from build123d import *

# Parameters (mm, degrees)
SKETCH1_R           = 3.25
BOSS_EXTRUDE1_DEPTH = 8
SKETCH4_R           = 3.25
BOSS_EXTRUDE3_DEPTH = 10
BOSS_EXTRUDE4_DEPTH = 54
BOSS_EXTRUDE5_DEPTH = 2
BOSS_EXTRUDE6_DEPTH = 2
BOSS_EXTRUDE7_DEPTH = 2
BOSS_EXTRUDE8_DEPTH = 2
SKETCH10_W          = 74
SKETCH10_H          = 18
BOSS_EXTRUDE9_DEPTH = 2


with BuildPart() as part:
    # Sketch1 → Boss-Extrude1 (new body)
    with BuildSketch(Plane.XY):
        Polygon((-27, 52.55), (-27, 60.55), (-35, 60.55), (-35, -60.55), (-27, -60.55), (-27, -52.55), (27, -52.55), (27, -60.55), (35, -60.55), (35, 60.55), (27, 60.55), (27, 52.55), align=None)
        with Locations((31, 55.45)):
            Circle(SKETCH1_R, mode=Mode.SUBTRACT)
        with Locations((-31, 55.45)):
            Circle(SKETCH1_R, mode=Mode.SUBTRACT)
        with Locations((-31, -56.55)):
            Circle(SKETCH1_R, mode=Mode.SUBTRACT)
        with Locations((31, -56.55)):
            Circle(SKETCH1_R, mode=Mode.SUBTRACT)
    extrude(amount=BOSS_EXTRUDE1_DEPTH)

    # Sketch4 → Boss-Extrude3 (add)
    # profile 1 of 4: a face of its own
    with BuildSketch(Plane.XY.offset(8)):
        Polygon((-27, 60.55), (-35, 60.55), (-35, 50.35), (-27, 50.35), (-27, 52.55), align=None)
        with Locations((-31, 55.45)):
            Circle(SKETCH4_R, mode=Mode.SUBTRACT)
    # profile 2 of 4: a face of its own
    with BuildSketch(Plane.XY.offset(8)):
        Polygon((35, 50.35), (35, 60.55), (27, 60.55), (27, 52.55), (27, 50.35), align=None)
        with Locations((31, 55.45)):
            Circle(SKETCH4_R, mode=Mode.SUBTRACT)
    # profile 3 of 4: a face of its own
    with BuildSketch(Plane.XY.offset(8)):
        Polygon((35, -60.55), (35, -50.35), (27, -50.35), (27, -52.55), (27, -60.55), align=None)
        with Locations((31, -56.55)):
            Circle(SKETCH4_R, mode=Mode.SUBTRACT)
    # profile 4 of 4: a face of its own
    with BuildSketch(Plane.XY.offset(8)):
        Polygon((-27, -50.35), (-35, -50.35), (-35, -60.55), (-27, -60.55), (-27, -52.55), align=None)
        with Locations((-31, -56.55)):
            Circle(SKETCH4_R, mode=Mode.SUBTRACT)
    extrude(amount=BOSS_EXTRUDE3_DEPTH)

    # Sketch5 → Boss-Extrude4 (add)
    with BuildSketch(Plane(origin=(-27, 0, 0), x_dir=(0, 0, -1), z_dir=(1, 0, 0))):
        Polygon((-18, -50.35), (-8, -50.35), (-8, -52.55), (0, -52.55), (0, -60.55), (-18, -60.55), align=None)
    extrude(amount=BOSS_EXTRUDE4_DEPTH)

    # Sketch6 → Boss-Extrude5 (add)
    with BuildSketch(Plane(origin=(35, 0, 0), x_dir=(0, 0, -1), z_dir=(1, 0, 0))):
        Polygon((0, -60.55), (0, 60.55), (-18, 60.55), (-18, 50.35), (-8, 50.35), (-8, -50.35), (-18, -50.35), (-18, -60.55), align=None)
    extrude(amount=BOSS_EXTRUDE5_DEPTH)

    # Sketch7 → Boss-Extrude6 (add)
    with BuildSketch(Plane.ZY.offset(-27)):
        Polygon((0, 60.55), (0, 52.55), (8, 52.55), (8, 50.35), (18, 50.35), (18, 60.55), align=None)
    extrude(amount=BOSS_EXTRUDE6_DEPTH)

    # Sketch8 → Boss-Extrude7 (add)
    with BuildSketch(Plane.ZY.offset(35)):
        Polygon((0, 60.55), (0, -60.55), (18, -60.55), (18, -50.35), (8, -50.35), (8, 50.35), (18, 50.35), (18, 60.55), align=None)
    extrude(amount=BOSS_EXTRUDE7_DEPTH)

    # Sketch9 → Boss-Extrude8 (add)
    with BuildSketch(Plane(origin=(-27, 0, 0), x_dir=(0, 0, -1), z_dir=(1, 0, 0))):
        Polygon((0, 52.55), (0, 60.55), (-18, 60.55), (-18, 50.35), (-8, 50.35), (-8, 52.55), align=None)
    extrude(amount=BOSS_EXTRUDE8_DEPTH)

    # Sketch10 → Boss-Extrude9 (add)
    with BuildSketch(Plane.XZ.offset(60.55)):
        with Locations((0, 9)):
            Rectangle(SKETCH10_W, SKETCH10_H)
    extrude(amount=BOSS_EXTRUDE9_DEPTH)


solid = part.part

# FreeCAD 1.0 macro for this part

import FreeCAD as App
import Part
import Sketcher

doc = App.newDocument("Part")
body = doc.addObject("PartDesign::Body", "Body")

# Sketch on XY plane
sketch1 = body.newObject("Sketcher::SketchObject", "Sketch")
sketch1.AttachmentSupport = (doc.getObject("XY_Plane"), [""])
sketch1.MapMode = "FlatFace"
sketch1.addGeometry([
    Part.LineSegment(App.Vector(-27, 52.5, 0), App.Vector(-27, 60.5, 0)),  # 0
    Part.LineSegment(App.Vector(-27, 60.5, 0), App.Vector(-35, 60.5, 0)),  # 1
    Part.LineSegment(App.Vector(-35, 60.5, 0), App.Vector(-35, -60.5, 0)),  # 2
    Part.LineSegment(App.Vector(-35, -60.5, 0), App.Vector(-27, -60.5, 0)),  # 3
    Part.LineSegment(App.Vector(-27, -60.5, 0), App.Vector(-27, -52.5, 0)),  # 4
    Part.LineSegment(App.Vector(-27, -52.5, 0), App.Vector(27, -52.5, 0)),  # 5
    Part.LineSegment(App.Vector(27, -52.5, 0), App.Vector(27, -60.5, 0)),  # 6
    Part.LineSegment(App.Vector(27, -60.5, 0), App.Vector(35, -60.5, 0)),  # 7
    Part.LineSegment(App.Vector(35, -60.5, 0), App.Vector(35, 60.5, 0)),  # 8
    Part.LineSegment(App.Vector(35, 60.5, 0), App.Vector(27, 60.5, 0)),  # 9
    Part.LineSegment(App.Vector(27, 60.5, 0), App.Vector(27, 52.5, 0)),  # 10
    Part.LineSegment(App.Vector(27, 52.5, 0), App.Vector(-27, 52.5, 0)),  # 11
    Part.Circle(App.Vector(-31, -56.5, 0), App.Vector(0, 0, 1), 3.2),  # 12
    Part.Circle(App.Vector(31, -56.5, 0), App.Vector(0, 0, 1), 3.2),  # 13
    Part.Circle(App.Vector(-31, 55.5, 0), App.Vector(0, 0, 1), 3.2),  # 14
    Part.Circle(App.Vector(31, 55.5, 0), App.Vector(0, 0, 1), 3.2),  # 15
], False)
sketch1.addConstraint([
    Sketcher.Constraint("Coincident", 0, 2, 1, 1),
    Sketcher.Constraint("Coincident", 1, 2, 2, 1),
    Sketcher.Constraint("Coincident", 2, 2, 3, 1),
    Sketcher.Constraint("Coincident", 3, 2, 4, 1),
    Sketcher.Constraint("Coincident", 4, 2, 5, 1),
    Sketcher.Constraint("Coincident", 5, 2, 6, 1),
    Sketcher.Constraint("Coincident", 6, 2, 7, 1),
    Sketcher.Constraint("Coincident", 7, 2, 8, 1),
    Sketcher.Constraint("Coincident", 8, 2, 9, 1),
    Sketcher.Constraint("Coincident", 9, 2, 10, 1),
    Sketcher.Constraint("Coincident", 10, 2, 11, 1),
    Sketcher.Constraint("Coincident", 11, 2, 0, 1),
    Sketcher.Constraint("Vertical", 0),
    Sketcher.Constraint("Horizontal", 1),
    Sketcher.Constraint("Vertical", 2),
    Sketcher.Constraint("Horizontal", 3),
    Sketcher.Constraint("Vertical", 4),
    Sketcher.Constraint("Horizontal", 5),
    Sketcher.Constraint("Vertical", 6),
    Sketcher.Constraint("Horizontal", 7),
    Sketcher.Constraint("Vertical", 8),
    Sketcher.Constraint("Horizontal", 9),
    Sketcher.Constraint("Vertical", 10),
    Sketcher.Constraint("Horizontal", 11),
    Sketcher.Constraint("Equal", 12, 13),
    Sketcher.Constraint("Equal", 13, 14),
    Sketcher.Constraint("Equal", 14, 15),
    Sketcher.Constraint("Symmetric", 0, 2, 6, 2, -1, 1),
    Sketcher.Constraint("Symmetric", 2, 2, 8, 2, -1, 1),
    Sketcher.Constraint("Symmetric", 4, 2, 10, 2, -1, 1),
    Sketcher.Constraint("Symmetric", 12, 3, 13, 3, -2),
    Sketcher.Constraint("Symmetric", 14, 3, 15, 3, -2),
    Sketcher.Constraint("Symmetric", 3, 2, 6, 2, -2),
    Sketcher.Constraint("Vertical", 12, 3, 14, 3),
    Sketcher.Constraint("Equal", 9, 0),
    Sketcher.Constraint("Diameter", 12, 6.5),
    Sketcher.Constraint("DistanceX", 1, 2, 1, 1, 8.0),
    Sketcher.Constraint("DistanceX", 5, 1, 5, 2, 54.0),
    Sketcher.Constraint("DistanceY", 2, 2, 2, 1, 121.1),
    Sketcher.Constraint("DistanceX", 12, 3, -1, 1, 31.0),
    Sketcher.Constraint("DistanceY", 12, 3, 14, 3, 112.0),
    Sketcher.Constraint("DistanceY", 2, 2, 12, 3, 4.0),
])
pad1 = body.newObject("PartDesign::Pad", "Pad")
pad1.Profile = sketch1
pad1.Length = 8

# Sketch on XY plane
sketch2 = body.newObject("Sketcher::SketchObject", "Sketch001")
sketch2.AttachmentSupport = (doc.getObject("XY_Plane"), [""])
sketch2.MapMode = "FlatFace"
sketch2.AttachmentOffset = App.Placement(App.Vector(0, 0, 8), App.Rotation())
sketch2.addGeometry([
    Part.LineSegment(App.Vector(-27, 60.5, 0), App.Vector(-35, 60.5, 0)),  # 0
    Part.LineSegment(App.Vector(-35, 60.5, 0), App.Vector(-35, 50.4, 0)),  # 1
    Part.LineSegment(App.Vector(-35, 50.4, 0), App.Vector(-27, 50.4, 0)),  # 2
    Part.LineSegment(App.Vector(-27, 50.4, 0), App.Vector(-27, 60.5, 0)),  # 3
    Part.Circle(App.Vector(-31, 55.5, 0), App.Vector(0, 0, 1), 3.2),  # 4
    Part.LineSegment(App.Vector(35, 50.4, 0), App.Vector(35, 60.5, 0)),  # 5
    Part.LineSegment(App.Vector(35, 60.5, 0), App.Vector(27, 60.5, 0)),  # 6
    Part.LineSegment(App.Vector(27, 60.5, 0), App.Vector(27, 50.4, 0)),  # 7
    Part.LineSegment(App.Vector(27, 50.4, 0), App.Vector(35, 50.4, 0)),  # 8
    Part.Circle(App.Vector(31, 55.5, 0), App.Vector(0, 0, 1), 3.2),  # 9
    Part.LineSegment(App.Vector(35, -60.5, 0), App.Vector(35, -50.4, 0)),  # 10
    Part.LineSegment(App.Vector(35, -50.4, 0), App.Vector(27, -50.4, 0)),  # 11
    Part.LineSegment(App.Vector(27, -50.4, 0), App.Vector(27, -60.5, 0)),  # 12
    Part.LineSegment(App.Vector(27, -60.5, 0), App.Vector(35, -60.5, 0)),  # 13
    Part.Circle(App.Vector(31, -56.5, 0), App.Vector(0, 0, 1), 3.2),  # 14
    Part.LineSegment(App.Vector(-27, -50.4, 0), App.Vector(-35, -50.4, 0)),  # 15
    Part.LineSegment(App.Vector(-35, -50.4, 0), App.Vector(-35, -60.5, 0)),  # 16
    Part.LineSegment(App.Vector(-35, -60.5, 0), App.Vector(-27, -60.5, 0)),  # 17
    Part.LineSegment(App.Vector(-27, -60.5, 0), App.Vector(-27, -50.4, 0)),  # 18
    Part.Circle(App.Vector(-31, -56.5, 0), App.Vector(0, 0, 1), 3.2),  # 19
], False)
sketch2.addConstraint([
    Sketcher.Constraint("Coincident", 0, 2, 1, 1),
    Sketcher.Constraint("Coincident", 1, 2, 2, 1),
    Sketcher.Constraint("Coincident", 2, 2, 3, 1),
    Sketcher.Constraint("Coincident", 3, 2, 0, 1),
    Sketcher.Constraint("Coincident", 5, 2, 6, 1),
    Sketcher.Constraint("Coincident", 6, 2, 7, 1),
    Sketcher.Constraint("Coincident", 7, 2, 8, 1),
    Sketcher.Constraint("Coincident", 8, 2, 5, 1),
    Sketcher.Constraint("Coincident", 10, 2, 11, 1),
    Sketcher.Constraint("Coincident", 11, 2, 12, 1),
    Sketcher.Constraint("Coincident", 12, 2, 13, 1),
    Sketcher.Constraint("Coincident", 13, 2, 10, 1),
    Sketcher.Constraint("Coincident", 15, 2, 16, 1),
    Sketcher.Constraint("Coincident", 16, 2, 17, 1),
    Sketcher.Constraint("Coincident", 17, 2, 18, 1),
    Sketcher.Constraint("Coincident", 18, 2, 15, 1),
    Sketcher.Constraint("Horizontal", 0),
    Sketcher.Constraint("Vertical", 1),
    Sketcher.Constraint("Horizontal", 2),
    Sketcher.Constraint("Vertical", 3),
    Sketcher.Constraint("Vertical", 5),
    Sketcher.Constraint("Horizontal", 6),
    Sketcher.Constraint("Vertical", 7),
    Sketcher.Constraint("Horizontal", 8),
    Sketcher.Constraint("Vertical", 10),
    Sketcher.Constraint("Horizontal", 11),
    Sketcher.Constraint("Vertical", 12),
    Sketcher.Constraint("Horizontal", 13),
    Sketcher.Constraint("Horizontal", 15),
    Sketcher.Constraint("Vertical", 16),
    Sketcher.Constraint("Horizontal", 17),
    Sketcher.Constraint("Vertical", 18),
    Sketcher.Constraint("Equal", 4, 9),
    Sketcher.Constraint("Equal", 9, 14),
    Sketcher.Constraint("Equal", 14, 19),
    Sketcher.Constraint("Symmetric", 1, 2, 10, 2, -1, 1),
    Sketcher.Constraint("Symmetric", 3, 2, 12, 2, -1, 1),
    Sketcher.Constraint("Symmetric", 8, 2, 15, 2, -1, 1),
    Sketcher.Constraint("Symmetric", 6, 2, 17, 2, -1, 1),
    Sketcher.Constraint("Symmetric", 4, 3, 9, 3, -2),
    Sketcher.Constraint("Symmetric", 14, 3, 19, 3, -2),
    Sketcher.Constraint("Symmetric", 0, 2, 5, 2, -2),
    Sketcher.Constraint("Symmetric", 2, 2, 7, 2, -2),
    Sketcher.Constraint("Vertical", 9, 3, 14, 3),
    Sketcher.Constraint("Diameter", 4, 6.5),
    Sketcher.Constraint("DistanceX", 0, 2, 0, 1, 8.0),
    Sketcher.Constraint("DistanceY", 1, 2, 1, 1, 10.2),
    Sketcher.Constraint("DistanceX", 4, 3, -1, 1, 31.0),
    Sketcher.Constraint("DistanceX", 0, 2, -1, 1, 35.0),
    Sketcher.Constraint("DistanceY", 14, 3, 9, 3, 112.0),
    Sketcher.Constraint("DistanceY", 12, 2, 14, 3, 4.0),
    Sketcher.Constraint("DistanceY", 4, 3, 0, 2, 5.1),
])
pad2 = body.newObject("PartDesign::Pad", "Pad001")
pad2.Profile = sketch2
pad2.Length = 10

# Sketch on YZ plane
sketch3 = body.newObject("Sketcher::SketchObject", "Sketch002")
sketch3.AttachmentSupport = (doc.getObject("YZ_Plane"), [""])
sketch3.MapMode = "FlatFace"
sketch3.AttachmentOffset = App.Placement(App.Vector(0, 0, -27), App.Rotation())
sketch3.addGeometry([
    Part.LineSegment(App.Vector(-50.4, 8, 0), App.Vector(-50.4, 18, 0)),  # 0
    Part.LineSegment(App.Vector(-50.4, 18, 0), App.Vector(-60.5, 18, 0)),  # 1
    Part.LineSegment(App.Vector(-60.5, 18, 0), App.Vector(-60.5, 0, 0)),  # 2
    Part.LineSegment(App.Vector(-60.5, 0, 0), App.Vector(-52.5, 0, 0)),  # 3
    Part.LineSegment(App.Vector(-52.5, 0, 0), App.Vector(-52.5, 8, 0)),  # 4
    Part.LineSegment(App.Vector(-52.5, 8, 0), App.Vector(-50.4, 8, 0)),  # 5
], False)
sketch3.addConstraint([
    Sketcher.Constraint("Coincident", 0, 2, 1, 1),
    Sketcher.Constraint("Coincident", 1, 2, 2, 1),
    Sketcher.Constraint("Coincident", 2, 2, 3, 1),
    Sketcher.Constraint("Coincident", 3, 2, 4, 1),
    Sketcher.Constraint("Coincident", 4, 2, 5, 1),
    Sketcher.Constraint("Coincident", 5, 2, 0, 1),
    Sketcher.Constraint("Vertical", 0),
    Sketcher.Constraint("Horizontal", 1),
    Sketcher.Constraint("Vertical", 2),
    Sketcher.Constraint("Horizontal", 3),
    Sketcher.Constraint("Vertical", 4),
    Sketcher.Constraint("Horizontal", 5),
    Sketcher.Constraint("PointOnObject", 2, 2, -1),
    Sketcher.Constraint("Equal", 3, 4),
    Sketcher.Constraint("DistanceX", 3, 1, 3, 2, 8.0),
    Sketcher.Constraint("DistanceY", 0, 1, 0, 2, 10.0),
    Sketcher.Constraint("DistanceX", 1, 2, 1, 1, 10.2),
    Sketcher.Constraint("DistanceX", 0, 2, -1, 1, 50.35),
])
pad3 = body.newObject("PartDesign::Pad", "Pad002")
pad3.Profile = sketch3
pad3.Length = 54

# Sketch on YZ plane
sketch4 = body.newObject("Sketcher::SketchObject", "Sketch003")
sketch4.AttachmentSupport = (doc.getObject("YZ_Plane"), [""])
sketch4.MapMode = "FlatFace"
sketch4.AttachmentOffset = App.Placement(App.Vector(0, 0, 35), App.Rotation())
sketch4.addGeometry([
    Part.LineSegment(App.Vector(-61, 0, 0), App.Vector(61, 0, 0)),  # 0
    Part.LineSegment(App.Vector(61, 0, 0), App.Vector(61, 18, 0)),  # 1
    Part.LineSegment(App.Vector(61, 18, 0), App.Vector(50, 18, 0)),  # 2
    Part.LineSegment(App.Vector(50, 18, 0), App.Vector(50, 8, 0)),  # 3
    Part.LineSegment(App.Vector(50, 8, 0), App.Vector(-50, 8, 0)),  # 4
    Part.LineSegment(App.Vector(-50, 8, 0), App.Vector(-50, 18, 0)),  # 5
    Part.LineSegment(App.Vector(-50, 18, 0), App.Vector(-61, 18, 0)),  # 6
    Part.LineSegment(App.Vector(-61, 18, 0), App.Vector(-61, 0, 0)),  # 7
], False)
sketch4.addConstraint([
    Sketcher.Constraint("Coincident", 0, 2, 1, 1),
    Sketcher.Constraint("Coincident", 1, 2, 2, 1),
    Sketcher.Constraint("Coincident", 2, 2, 3, 1),
    Sketcher.Constraint("Coincident", 3, 2, 4, 1),
    Sketcher.Constraint("Coincident", 4, 2, 5, 1),
    Sketcher.Constraint("Coincident", 5, 2, 6, 1),
    Sketcher.Constraint("Coincident", 6, 2, 7, 1),
    Sketcher.Constraint("Coincident", 7, 2, 0, 1),
    Sketcher.Constraint("Horizontal", 0),
    Sketcher.Constraint("Vertical", 1),
    Sketcher.Constraint("Horizontal", 2),
    Sketcher.Constraint("Vertical", 3),
    Sketcher.Constraint("Horizontal", 4),
    Sketcher.Constraint("Vertical", 5),
    Sketcher.Constraint("Horizontal", 6),
    Sketcher.Constraint("Vertical", 7),
    Sketcher.Constraint("Symmetric", 0, 2, 7, 2, -1, 1),
    Sketcher.Constraint("Symmetric", 2, 2, 5, 2, -2),
    Sketcher.Constraint("DistanceY", 1, 1, 1, 2, 18.0),
    Sketcher.Constraint("DistanceY", 3, 2, 3, 1, 10.0),
    Sketcher.Constraint("DistanceX", 0, 1, 0, 2, 121.1),
    Sketcher.Constraint("DistanceX", 2, 2, 2, 1, 10.2),
])
pad4 = body.newObject("PartDesign::Pad", "Pad003")
pad4.Profile = sketch4
pad4.Length = 2

# Sketch on YZ plane
sketch5 = body.newObject("Sketcher::SketchObject", "Sketch004")
sketch5.AttachmentSupport = (doc.getObject("YZ_Plane"), [""])
sketch5.MapMode = "FlatFace"
sketch5.AttachmentOffset = App.Placement(App.Vector(0, 0, 27), App.Rotation())
sketch5.addGeometry([
    Part.LineSegment(App.Vector(60.5, 0, 0), App.Vector(52.5, 0, 0)),  # 0
    Part.LineSegment(App.Vector(52.5, 0, 0), App.Vector(52.5, 8, 0)),  # 1
    Part.LineSegment(App.Vector(52.5, 8, 0), App.Vector(50.4, 8, 0)),  # 2
    Part.LineSegment(App.Vector(50.4, 8, 0), App.Vector(50.4, 18, 0)),  # 3
    Part.LineSegment(App.Vector(50.4, 18, 0), App.Vector(60.5, 18, 0)),  # 4
    Part.LineSegment(App.Vector(60.5, 18, 0), App.Vector(60.5, 0, 0)),  # 5
], False)
sketch5.addConstraint([
    Sketcher.Constraint("Coincident", 0, 2, 1, 1),
    Sketcher.Constraint("Coincident", 1, 2, 2, 1),
    Sketcher.Constraint("Coincident", 2, 2, 3, 1),
    Sketcher.Constraint("Coincident", 3, 2, 4, 1),
    Sketcher.Constraint("Coincident", 4, 2, 5, 1),
    Sketcher.Constraint("Coincident", 5, 2, 0, 1),
    Sketcher.Constraint("Horizontal", 0),
    Sketcher.Constraint("Vertical", 1),
    Sketcher.Constraint("Horizontal", 2),
    Sketcher.Constraint("Vertical", 3),
    Sketcher.Constraint("Horizontal", 4),
    Sketcher.Constraint("Vertical", 5),
    Sketcher.Constraint("PointOnObject", 0, 2, -1),
    Sketcher.Constraint("Equal", 0, 1),
    Sketcher.Constraint("DistanceX", 0, 2, 0, 1, 8.0),
    Sketcher.Constraint("DistanceY", 3, 1, 3, 2, 10.0),
    Sketcher.Constraint("DistanceX", 2, 2, 2, 1, 2.2),
    Sketcher.Constraint("DistanceX", -1, 1, 0, 2, 52.55),
])
pad5 = body.newObject("PartDesign::Pad", "Pad004")
pad5.Profile = sketch5
pad5.Length = 2
pad5.Reversed = True

# Sketch on YZ plane
sketch6 = body.newObject("Sketcher::SketchObject", "Sketch005")
sketch6.AttachmentSupport = (doc.getObject("YZ_Plane"), [""])
sketch6.MapMode = "FlatFace"
sketch6.AttachmentOffset = App.Placement(App.Vector(0, 0, -35), App.Rotation())
sketch6.addGeometry([
    Part.LineSegment(App.Vector(61, 0, 0), App.Vector(-61, 0, 0)),  # 0
    Part.LineSegment(App.Vector(-61, 0, 0), App.Vector(-61, 18, 0)),  # 1
    Part.LineSegment(App.Vector(-61, 18, 0), App.Vector(-50, 18, 0)),  # 2
    Part.LineSegment(App.Vector(-50, 18, 0), App.Vector(-50, 8, 0)),  # 3
    Part.LineSegment(App.Vector(-50, 8, 0), App.Vector(50, 8, 0)),  # 4
    Part.LineSegment(App.Vector(50, 8, 0), App.Vector(50, 18, 0)),  # 5
    Part.LineSegment(App.Vector(50, 18, 0), App.Vector(61, 18, 0)),  # 6
    Part.LineSegment(App.Vector(61, 18, 0), App.Vector(61, 0, 0)),  # 7
], False)
sketch6.addConstraint([
    Sketcher.Constraint("Coincident", 0, 2, 1, 1),
    Sketcher.Constraint("Coincident", 1, 2, 2, 1),
    Sketcher.Constraint("Coincident", 2, 2, 3, 1),
    Sketcher.Constraint("Coincident", 3, 2, 4, 1),
    Sketcher.Constraint("Coincident", 4, 2, 5, 1),
    Sketcher.Constraint("Coincident", 5, 2, 6, 1),
    Sketcher.Constraint("Coincident", 6, 2, 7, 1),
    Sketcher.Constraint("Coincident", 7, 2, 0, 1),
    Sketcher.Constraint("Horizontal", 0),
    Sketcher.Constraint("Vertical", 1),
    Sketcher.Constraint("Horizontal", 2),
    Sketcher.Constraint("Vertical", 3),
    Sketcher.Constraint("Horizontal", 4),
    Sketcher.Constraint("Vertical", 5),
    Sketcher.Constraint("Horizontal", 6),
    Sketcher.Constraint("Vertical", 7),
    Sketcher.Constraint("Symmetric", 0, 2, 7, 2, -1, 1),
    Sketcher.Constraint("Symmetric", 2, 2, 5, 2, -2),
    Sketcher.Constraint("DistanceY", 1, 1, 1, 2, 18.0),
    Sketcher.Constraint("DistanceY", 3, 2, 3, 1, 10.0),
    Sketcher.Constraint("DistanceX", 0, 2, 0, 1, 121.1),
    Sketcher.Constraint("DistanceX", 2, 1, 2, 2, 10.2),
])
pad6 = body.newObject("PartDesign::Pad", "Pad005")
pad6.Profile = sketch6
pad6.Length = 2
pad6.Reversed = True

# Sketch on YZ plane
sketch7 = body.newObject("Sketcher::SketchObject", "Sketch006")
sketch7.AttachmentSupport = (doc.getObject("YZ_Plane"), [""])
sketch7.MapMode = "FlatFace"
sketch7.AttachmentOffset = App.Placement(App.Vector(0, 0, -27), App.Rotation())
sketch7.addGeometry([
    Part.LineSegment(App.Vector(52.5, 0, 0), App.Vector(60.5, 0, 0)),  # 0
    Part.LineSegment(App.Vector(60.5, 0, 0), App.Vector(60.5, 18, 0)),  # 1
    Part.LineSegment(App.Vector(60.5, 18, 0), App.Vector(50.4, 18, 0)),  # 2
    Part.LineSegment(App.Vector(50.4, 18, 0), App.Vector(50.4, 8, 0)),  # 3
    Part.LineSegment(App.Vector(50.4, 8, 0), App.Vector(52.5, 8, 0)),  # 4
    Part.LineSegment(App.Vector(52.5, 8, 0), App.Vector(52.5, 0, 0)),  # 5
], False)
sketch7.addConstraint([
    Sketcher.Constraint("Coincident", 0, 2, 1, 1),
    Sketcher.Constraint("Coincident", 1, 2, 2, 1),
    Sketcher.Constraint("Coincident", 2, 2, 3, 1),
    Sketcher.Constraint("Coincident", 3, 2, 4, 1),
    Sketcher.Constraint("Coincident", 4, 2, 5, 1),
    Sketcher.Constraint("Coincident", 5, 2, 0, 1),
    Sketcher.Constraint("Horizontal", 0),
    Sketcher.Constraint("Vertical", 1),
    Sketcher.Constraint("Horizontal", 2),
    Sketcher.Constraint("Vertical", 3),
    Sketcher.Constraint("Horizontal", 4),
    Sketcher.Constraint("Vertical", 5),
    Sketcher.Constraint("PointOnObject", 0, 2, -1),
    Sketcher.Constraint("Equal", 0, 5),
    Sketcher.Constraint("DistanceX", 0, 1, 0, 2, 8.0),
    Sketcher.Constraint("DistanceY", 1, 1, 1, 2, 18.0),
    Sketcher.Constraint("DistanceX", 2, 2, 2, 1, 10.2),
    Sketcher.Constraint("DistanceX", -1, 1, 0, 2, 60.55),
])
pad7 = body.newObject("PartDesign::Pad", "Pad006")
pad7.Profile = sketch7
pad7.Length = 2

# Sketch on XZ plane
sketch8 = body.newObject("Sketcher::SketchObject", "Sketch007")
sketch8.AttachmentSupport = (doc.getObject("XZ_Plane"), [""])
sketch8.MapMode = "FlatFace"
sketch8.AttachmentOffset = App.Placement(App.Vector(0, 0, 60.55), App.Rotation())
sketch8.addGeometry([
    Part.LineSegment(App.Vector(-37, 18, 0), App.Vector(-37, 0, 0)),
    Part.LineSegment(App.Vector(-37, 0, 0), App.Vector(37, 0, 0)),
    Part.LineSegment(App.Vector(37, 0, 0), App.Vector(37, 18, 0)),
    Part.LineSegment(App.Vector(37, 18, 0), App.Vector(-37, 18, 0)),
], False)
sketch8.addConstraint([
    Sketcher.Constraint("Coincident", 0, 2, 1, 1),
    Sketcher.Constraint("Coincident", 1, 2, 2, 1),
    Sketcher.Constraint("Coincident", 2, 2, 3, 1),
    Sketcher.Constraint("Coincident", 3, 2, 0, 1),
    Sketcher.Constraint("Vertical", 0),
    Sketcher.Constraint("Horizontal", 1),
    Sketcher.Constraint("Vertical", 2),
    Sketcher.Constraint("Horizontal", 3),
    Sketcher.Constraint("Symmetric", 0, 2, 1, 2, -1, 1),
    Sketcher.Constraint("DistanceX", 1, 1, 1, 2, 74.0),
    Sketcher.Constraint("DistanceY", 0, 2, 0, 1, 18.0),
])
pad8 = body.newObject("PartDesign::Pad", "Pad007")
pad8.Profile = sketch8
pad8.Length = 2

doc.recompute()
